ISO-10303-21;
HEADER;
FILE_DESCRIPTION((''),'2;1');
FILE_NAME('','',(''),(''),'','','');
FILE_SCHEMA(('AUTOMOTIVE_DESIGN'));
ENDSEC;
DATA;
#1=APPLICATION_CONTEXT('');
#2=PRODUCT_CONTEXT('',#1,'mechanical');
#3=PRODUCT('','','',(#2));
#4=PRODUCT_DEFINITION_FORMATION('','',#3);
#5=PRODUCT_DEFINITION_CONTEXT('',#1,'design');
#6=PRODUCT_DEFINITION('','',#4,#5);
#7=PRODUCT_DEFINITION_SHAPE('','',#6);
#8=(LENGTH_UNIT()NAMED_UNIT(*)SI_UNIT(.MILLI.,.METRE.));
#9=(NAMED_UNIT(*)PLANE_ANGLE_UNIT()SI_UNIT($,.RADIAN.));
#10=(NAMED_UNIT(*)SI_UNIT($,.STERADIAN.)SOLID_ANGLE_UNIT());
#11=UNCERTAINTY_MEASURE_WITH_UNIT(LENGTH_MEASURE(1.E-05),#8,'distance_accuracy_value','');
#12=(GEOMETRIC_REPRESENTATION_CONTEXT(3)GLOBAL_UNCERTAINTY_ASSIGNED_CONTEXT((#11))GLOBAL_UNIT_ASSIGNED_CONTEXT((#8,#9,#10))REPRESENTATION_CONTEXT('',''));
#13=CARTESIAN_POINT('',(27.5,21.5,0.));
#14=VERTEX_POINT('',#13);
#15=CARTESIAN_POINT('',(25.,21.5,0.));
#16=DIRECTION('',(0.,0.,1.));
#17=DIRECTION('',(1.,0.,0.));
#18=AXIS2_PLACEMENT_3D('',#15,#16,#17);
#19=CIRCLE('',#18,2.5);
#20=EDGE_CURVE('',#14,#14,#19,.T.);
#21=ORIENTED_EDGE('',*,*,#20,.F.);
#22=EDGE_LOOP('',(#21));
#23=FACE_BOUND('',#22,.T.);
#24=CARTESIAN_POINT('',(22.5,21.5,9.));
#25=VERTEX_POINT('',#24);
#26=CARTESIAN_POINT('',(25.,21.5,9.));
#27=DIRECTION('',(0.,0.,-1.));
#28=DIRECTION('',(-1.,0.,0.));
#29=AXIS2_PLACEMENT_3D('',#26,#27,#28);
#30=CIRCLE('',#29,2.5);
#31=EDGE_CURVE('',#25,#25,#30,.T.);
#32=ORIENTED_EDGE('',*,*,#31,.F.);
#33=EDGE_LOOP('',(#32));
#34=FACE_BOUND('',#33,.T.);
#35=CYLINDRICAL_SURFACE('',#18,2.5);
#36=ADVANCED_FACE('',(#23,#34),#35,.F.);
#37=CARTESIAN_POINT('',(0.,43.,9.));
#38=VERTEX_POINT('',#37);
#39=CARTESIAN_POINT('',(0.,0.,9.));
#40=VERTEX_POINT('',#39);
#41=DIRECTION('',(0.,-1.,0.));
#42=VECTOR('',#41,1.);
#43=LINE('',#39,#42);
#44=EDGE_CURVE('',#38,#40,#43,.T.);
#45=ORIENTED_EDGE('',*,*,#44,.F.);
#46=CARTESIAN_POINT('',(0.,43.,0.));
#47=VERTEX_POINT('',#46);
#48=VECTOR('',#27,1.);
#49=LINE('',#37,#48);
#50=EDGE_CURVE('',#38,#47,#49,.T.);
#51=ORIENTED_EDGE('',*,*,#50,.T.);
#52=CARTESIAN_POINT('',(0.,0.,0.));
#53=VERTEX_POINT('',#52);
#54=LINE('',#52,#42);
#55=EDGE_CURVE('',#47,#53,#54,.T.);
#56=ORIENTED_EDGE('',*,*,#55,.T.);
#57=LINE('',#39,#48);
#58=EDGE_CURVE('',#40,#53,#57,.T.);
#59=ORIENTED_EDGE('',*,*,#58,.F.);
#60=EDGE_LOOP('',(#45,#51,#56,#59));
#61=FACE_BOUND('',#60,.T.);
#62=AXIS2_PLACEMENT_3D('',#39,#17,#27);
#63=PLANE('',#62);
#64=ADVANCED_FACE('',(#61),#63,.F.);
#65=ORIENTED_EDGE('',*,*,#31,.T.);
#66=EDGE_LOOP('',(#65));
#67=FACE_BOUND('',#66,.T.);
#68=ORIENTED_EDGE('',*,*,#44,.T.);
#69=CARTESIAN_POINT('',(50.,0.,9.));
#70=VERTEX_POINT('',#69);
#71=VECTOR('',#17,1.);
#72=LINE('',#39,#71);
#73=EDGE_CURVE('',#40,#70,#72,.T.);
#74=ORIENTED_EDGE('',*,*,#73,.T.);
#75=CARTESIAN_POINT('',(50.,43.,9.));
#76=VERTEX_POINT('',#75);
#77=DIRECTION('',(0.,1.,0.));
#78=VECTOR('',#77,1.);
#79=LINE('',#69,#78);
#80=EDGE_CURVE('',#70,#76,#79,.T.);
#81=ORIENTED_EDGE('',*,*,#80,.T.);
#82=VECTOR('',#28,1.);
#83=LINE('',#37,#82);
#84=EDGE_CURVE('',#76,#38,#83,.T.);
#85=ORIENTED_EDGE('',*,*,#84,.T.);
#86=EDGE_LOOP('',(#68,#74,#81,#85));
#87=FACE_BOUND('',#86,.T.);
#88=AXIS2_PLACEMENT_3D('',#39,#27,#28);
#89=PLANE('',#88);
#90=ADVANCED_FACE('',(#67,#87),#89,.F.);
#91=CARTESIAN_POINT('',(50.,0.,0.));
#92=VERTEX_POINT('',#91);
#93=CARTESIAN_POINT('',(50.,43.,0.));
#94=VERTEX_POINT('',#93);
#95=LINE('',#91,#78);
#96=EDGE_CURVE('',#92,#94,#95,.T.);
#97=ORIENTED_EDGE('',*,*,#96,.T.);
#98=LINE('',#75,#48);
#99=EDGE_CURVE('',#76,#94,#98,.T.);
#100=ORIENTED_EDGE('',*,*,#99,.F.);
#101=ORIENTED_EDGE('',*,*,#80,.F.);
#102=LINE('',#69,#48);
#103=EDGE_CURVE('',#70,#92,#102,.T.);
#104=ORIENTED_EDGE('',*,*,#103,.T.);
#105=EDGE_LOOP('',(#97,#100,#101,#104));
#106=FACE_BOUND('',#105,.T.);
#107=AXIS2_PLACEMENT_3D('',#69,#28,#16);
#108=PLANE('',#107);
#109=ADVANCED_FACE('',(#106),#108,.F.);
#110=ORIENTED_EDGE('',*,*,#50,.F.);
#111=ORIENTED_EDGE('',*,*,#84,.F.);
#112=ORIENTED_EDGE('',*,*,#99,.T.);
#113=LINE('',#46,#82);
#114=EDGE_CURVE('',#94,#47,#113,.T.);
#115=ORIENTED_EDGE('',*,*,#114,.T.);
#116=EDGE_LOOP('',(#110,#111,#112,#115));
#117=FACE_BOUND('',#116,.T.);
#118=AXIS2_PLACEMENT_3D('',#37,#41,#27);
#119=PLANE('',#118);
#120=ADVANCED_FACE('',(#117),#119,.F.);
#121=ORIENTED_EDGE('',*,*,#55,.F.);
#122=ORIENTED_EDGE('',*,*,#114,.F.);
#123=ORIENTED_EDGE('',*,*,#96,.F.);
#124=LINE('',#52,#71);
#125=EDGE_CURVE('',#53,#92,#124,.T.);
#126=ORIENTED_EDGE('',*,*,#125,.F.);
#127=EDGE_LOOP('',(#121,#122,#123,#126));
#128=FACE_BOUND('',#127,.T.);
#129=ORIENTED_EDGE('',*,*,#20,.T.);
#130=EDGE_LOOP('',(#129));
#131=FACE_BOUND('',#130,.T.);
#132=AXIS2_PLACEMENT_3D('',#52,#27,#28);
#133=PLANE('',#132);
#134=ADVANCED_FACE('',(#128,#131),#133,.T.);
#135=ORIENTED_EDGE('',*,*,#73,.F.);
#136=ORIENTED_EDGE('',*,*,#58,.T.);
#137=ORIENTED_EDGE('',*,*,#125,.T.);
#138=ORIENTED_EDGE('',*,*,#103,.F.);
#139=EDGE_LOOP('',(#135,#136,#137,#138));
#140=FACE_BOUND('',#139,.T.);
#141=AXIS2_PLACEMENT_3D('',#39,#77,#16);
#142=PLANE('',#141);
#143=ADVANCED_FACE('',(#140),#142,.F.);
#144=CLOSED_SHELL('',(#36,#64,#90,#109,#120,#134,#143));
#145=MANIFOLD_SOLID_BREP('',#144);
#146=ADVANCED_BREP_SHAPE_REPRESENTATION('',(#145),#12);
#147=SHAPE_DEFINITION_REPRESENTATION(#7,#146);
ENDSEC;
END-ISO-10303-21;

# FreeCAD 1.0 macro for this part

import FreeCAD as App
import Part
import Sketcher
from FreeCAD import Vector


def add_polygon(sketch, points):
    """Adds a closed chain of lines whose ends are joined by coincident constraints."""
    first, n = sketch.GeometryCount, len(points)
    for a, b in zip(points, points[1:] + points[:1]):
        sketch.addGeometry(Part.LineSegment(App.Vector(*a, 0), App.Vector(*b, 0)), False)
    for i in range(n):
        sketch.addConstraint(Sketcher.Constraint("Coincident", first + i, 2, first + (i + 1) % n, 1))

doc = App.newDocument("Part")
body = doc.addObject("PartDesign::Body", "Body")

sketch1 = doc.addObject("Sketcher::SketchObject", "Sketch")
body.addObject(sketch1)
sketch1.AttachmentSupport = (doc.XY_Plane, [""])
sketch1.MapMode = "FlatFace"
add_polygon(sketch1, [(0, 43), (0, 0), (50, 0), (50, 43)])
sketch1.addConstraint([
    Sketcher.Constraint("Vertical", 0),
    Sketcher.Constraint("Horizontal", 1),
    Sketcher.Constraint("Vertical", 2),
    Sketcher.Constraint("Horizontal", 3),
    Sketcher.Constraint("Coincident", 0, 2, -1, 1),
    Sketcher.Constraint("DistanceX", 1, 1, 1, 2, 50.0),
    Sketcher.Constraint("DistanceY", 0, 2, 0, 1, 43.0),
])
pad1 = doc.addObject("PartDesign::Pad", "Pad")
body.addObject(pad1)
pad1.Profile = sketch1
pad1.Length = 9

sketch2 = doc.addObject("Sketcher::SketchObject", "Sketch001")
body.addObject(sketch2)
sketch2.AttachmentSupport = (doc.XY_Plane, [""])
sketch2.MapMode = "FlatFace"
sketch2.AttachmentOffset = App.Placement(Vector(0, 0, 9), App.Rotation())
sketch2.addGeometry(Part.Circle(Vector(25, 21.5, 0), Vector(0, 0, 1), 2.5), False)
sketch2.addConstraint([
    Sketcher.Constraint("Diameter", 0, 5.0),
    Sketcher.Constraint("DistanceX", -1, 1, 0, 3, 25.0),
    Sketcher.Constraint("DistanceY", -1, 1, 0, 3, 21.5),
])
pocket1 = doc.addObject("PartDesign::Pocket", "Pocket")
body.addObject(pocket1)
pocket1.Profile = sketch2
pocket1.Type = "ThroughAll"
pocket1.Midplane = True

doc.recompute()
